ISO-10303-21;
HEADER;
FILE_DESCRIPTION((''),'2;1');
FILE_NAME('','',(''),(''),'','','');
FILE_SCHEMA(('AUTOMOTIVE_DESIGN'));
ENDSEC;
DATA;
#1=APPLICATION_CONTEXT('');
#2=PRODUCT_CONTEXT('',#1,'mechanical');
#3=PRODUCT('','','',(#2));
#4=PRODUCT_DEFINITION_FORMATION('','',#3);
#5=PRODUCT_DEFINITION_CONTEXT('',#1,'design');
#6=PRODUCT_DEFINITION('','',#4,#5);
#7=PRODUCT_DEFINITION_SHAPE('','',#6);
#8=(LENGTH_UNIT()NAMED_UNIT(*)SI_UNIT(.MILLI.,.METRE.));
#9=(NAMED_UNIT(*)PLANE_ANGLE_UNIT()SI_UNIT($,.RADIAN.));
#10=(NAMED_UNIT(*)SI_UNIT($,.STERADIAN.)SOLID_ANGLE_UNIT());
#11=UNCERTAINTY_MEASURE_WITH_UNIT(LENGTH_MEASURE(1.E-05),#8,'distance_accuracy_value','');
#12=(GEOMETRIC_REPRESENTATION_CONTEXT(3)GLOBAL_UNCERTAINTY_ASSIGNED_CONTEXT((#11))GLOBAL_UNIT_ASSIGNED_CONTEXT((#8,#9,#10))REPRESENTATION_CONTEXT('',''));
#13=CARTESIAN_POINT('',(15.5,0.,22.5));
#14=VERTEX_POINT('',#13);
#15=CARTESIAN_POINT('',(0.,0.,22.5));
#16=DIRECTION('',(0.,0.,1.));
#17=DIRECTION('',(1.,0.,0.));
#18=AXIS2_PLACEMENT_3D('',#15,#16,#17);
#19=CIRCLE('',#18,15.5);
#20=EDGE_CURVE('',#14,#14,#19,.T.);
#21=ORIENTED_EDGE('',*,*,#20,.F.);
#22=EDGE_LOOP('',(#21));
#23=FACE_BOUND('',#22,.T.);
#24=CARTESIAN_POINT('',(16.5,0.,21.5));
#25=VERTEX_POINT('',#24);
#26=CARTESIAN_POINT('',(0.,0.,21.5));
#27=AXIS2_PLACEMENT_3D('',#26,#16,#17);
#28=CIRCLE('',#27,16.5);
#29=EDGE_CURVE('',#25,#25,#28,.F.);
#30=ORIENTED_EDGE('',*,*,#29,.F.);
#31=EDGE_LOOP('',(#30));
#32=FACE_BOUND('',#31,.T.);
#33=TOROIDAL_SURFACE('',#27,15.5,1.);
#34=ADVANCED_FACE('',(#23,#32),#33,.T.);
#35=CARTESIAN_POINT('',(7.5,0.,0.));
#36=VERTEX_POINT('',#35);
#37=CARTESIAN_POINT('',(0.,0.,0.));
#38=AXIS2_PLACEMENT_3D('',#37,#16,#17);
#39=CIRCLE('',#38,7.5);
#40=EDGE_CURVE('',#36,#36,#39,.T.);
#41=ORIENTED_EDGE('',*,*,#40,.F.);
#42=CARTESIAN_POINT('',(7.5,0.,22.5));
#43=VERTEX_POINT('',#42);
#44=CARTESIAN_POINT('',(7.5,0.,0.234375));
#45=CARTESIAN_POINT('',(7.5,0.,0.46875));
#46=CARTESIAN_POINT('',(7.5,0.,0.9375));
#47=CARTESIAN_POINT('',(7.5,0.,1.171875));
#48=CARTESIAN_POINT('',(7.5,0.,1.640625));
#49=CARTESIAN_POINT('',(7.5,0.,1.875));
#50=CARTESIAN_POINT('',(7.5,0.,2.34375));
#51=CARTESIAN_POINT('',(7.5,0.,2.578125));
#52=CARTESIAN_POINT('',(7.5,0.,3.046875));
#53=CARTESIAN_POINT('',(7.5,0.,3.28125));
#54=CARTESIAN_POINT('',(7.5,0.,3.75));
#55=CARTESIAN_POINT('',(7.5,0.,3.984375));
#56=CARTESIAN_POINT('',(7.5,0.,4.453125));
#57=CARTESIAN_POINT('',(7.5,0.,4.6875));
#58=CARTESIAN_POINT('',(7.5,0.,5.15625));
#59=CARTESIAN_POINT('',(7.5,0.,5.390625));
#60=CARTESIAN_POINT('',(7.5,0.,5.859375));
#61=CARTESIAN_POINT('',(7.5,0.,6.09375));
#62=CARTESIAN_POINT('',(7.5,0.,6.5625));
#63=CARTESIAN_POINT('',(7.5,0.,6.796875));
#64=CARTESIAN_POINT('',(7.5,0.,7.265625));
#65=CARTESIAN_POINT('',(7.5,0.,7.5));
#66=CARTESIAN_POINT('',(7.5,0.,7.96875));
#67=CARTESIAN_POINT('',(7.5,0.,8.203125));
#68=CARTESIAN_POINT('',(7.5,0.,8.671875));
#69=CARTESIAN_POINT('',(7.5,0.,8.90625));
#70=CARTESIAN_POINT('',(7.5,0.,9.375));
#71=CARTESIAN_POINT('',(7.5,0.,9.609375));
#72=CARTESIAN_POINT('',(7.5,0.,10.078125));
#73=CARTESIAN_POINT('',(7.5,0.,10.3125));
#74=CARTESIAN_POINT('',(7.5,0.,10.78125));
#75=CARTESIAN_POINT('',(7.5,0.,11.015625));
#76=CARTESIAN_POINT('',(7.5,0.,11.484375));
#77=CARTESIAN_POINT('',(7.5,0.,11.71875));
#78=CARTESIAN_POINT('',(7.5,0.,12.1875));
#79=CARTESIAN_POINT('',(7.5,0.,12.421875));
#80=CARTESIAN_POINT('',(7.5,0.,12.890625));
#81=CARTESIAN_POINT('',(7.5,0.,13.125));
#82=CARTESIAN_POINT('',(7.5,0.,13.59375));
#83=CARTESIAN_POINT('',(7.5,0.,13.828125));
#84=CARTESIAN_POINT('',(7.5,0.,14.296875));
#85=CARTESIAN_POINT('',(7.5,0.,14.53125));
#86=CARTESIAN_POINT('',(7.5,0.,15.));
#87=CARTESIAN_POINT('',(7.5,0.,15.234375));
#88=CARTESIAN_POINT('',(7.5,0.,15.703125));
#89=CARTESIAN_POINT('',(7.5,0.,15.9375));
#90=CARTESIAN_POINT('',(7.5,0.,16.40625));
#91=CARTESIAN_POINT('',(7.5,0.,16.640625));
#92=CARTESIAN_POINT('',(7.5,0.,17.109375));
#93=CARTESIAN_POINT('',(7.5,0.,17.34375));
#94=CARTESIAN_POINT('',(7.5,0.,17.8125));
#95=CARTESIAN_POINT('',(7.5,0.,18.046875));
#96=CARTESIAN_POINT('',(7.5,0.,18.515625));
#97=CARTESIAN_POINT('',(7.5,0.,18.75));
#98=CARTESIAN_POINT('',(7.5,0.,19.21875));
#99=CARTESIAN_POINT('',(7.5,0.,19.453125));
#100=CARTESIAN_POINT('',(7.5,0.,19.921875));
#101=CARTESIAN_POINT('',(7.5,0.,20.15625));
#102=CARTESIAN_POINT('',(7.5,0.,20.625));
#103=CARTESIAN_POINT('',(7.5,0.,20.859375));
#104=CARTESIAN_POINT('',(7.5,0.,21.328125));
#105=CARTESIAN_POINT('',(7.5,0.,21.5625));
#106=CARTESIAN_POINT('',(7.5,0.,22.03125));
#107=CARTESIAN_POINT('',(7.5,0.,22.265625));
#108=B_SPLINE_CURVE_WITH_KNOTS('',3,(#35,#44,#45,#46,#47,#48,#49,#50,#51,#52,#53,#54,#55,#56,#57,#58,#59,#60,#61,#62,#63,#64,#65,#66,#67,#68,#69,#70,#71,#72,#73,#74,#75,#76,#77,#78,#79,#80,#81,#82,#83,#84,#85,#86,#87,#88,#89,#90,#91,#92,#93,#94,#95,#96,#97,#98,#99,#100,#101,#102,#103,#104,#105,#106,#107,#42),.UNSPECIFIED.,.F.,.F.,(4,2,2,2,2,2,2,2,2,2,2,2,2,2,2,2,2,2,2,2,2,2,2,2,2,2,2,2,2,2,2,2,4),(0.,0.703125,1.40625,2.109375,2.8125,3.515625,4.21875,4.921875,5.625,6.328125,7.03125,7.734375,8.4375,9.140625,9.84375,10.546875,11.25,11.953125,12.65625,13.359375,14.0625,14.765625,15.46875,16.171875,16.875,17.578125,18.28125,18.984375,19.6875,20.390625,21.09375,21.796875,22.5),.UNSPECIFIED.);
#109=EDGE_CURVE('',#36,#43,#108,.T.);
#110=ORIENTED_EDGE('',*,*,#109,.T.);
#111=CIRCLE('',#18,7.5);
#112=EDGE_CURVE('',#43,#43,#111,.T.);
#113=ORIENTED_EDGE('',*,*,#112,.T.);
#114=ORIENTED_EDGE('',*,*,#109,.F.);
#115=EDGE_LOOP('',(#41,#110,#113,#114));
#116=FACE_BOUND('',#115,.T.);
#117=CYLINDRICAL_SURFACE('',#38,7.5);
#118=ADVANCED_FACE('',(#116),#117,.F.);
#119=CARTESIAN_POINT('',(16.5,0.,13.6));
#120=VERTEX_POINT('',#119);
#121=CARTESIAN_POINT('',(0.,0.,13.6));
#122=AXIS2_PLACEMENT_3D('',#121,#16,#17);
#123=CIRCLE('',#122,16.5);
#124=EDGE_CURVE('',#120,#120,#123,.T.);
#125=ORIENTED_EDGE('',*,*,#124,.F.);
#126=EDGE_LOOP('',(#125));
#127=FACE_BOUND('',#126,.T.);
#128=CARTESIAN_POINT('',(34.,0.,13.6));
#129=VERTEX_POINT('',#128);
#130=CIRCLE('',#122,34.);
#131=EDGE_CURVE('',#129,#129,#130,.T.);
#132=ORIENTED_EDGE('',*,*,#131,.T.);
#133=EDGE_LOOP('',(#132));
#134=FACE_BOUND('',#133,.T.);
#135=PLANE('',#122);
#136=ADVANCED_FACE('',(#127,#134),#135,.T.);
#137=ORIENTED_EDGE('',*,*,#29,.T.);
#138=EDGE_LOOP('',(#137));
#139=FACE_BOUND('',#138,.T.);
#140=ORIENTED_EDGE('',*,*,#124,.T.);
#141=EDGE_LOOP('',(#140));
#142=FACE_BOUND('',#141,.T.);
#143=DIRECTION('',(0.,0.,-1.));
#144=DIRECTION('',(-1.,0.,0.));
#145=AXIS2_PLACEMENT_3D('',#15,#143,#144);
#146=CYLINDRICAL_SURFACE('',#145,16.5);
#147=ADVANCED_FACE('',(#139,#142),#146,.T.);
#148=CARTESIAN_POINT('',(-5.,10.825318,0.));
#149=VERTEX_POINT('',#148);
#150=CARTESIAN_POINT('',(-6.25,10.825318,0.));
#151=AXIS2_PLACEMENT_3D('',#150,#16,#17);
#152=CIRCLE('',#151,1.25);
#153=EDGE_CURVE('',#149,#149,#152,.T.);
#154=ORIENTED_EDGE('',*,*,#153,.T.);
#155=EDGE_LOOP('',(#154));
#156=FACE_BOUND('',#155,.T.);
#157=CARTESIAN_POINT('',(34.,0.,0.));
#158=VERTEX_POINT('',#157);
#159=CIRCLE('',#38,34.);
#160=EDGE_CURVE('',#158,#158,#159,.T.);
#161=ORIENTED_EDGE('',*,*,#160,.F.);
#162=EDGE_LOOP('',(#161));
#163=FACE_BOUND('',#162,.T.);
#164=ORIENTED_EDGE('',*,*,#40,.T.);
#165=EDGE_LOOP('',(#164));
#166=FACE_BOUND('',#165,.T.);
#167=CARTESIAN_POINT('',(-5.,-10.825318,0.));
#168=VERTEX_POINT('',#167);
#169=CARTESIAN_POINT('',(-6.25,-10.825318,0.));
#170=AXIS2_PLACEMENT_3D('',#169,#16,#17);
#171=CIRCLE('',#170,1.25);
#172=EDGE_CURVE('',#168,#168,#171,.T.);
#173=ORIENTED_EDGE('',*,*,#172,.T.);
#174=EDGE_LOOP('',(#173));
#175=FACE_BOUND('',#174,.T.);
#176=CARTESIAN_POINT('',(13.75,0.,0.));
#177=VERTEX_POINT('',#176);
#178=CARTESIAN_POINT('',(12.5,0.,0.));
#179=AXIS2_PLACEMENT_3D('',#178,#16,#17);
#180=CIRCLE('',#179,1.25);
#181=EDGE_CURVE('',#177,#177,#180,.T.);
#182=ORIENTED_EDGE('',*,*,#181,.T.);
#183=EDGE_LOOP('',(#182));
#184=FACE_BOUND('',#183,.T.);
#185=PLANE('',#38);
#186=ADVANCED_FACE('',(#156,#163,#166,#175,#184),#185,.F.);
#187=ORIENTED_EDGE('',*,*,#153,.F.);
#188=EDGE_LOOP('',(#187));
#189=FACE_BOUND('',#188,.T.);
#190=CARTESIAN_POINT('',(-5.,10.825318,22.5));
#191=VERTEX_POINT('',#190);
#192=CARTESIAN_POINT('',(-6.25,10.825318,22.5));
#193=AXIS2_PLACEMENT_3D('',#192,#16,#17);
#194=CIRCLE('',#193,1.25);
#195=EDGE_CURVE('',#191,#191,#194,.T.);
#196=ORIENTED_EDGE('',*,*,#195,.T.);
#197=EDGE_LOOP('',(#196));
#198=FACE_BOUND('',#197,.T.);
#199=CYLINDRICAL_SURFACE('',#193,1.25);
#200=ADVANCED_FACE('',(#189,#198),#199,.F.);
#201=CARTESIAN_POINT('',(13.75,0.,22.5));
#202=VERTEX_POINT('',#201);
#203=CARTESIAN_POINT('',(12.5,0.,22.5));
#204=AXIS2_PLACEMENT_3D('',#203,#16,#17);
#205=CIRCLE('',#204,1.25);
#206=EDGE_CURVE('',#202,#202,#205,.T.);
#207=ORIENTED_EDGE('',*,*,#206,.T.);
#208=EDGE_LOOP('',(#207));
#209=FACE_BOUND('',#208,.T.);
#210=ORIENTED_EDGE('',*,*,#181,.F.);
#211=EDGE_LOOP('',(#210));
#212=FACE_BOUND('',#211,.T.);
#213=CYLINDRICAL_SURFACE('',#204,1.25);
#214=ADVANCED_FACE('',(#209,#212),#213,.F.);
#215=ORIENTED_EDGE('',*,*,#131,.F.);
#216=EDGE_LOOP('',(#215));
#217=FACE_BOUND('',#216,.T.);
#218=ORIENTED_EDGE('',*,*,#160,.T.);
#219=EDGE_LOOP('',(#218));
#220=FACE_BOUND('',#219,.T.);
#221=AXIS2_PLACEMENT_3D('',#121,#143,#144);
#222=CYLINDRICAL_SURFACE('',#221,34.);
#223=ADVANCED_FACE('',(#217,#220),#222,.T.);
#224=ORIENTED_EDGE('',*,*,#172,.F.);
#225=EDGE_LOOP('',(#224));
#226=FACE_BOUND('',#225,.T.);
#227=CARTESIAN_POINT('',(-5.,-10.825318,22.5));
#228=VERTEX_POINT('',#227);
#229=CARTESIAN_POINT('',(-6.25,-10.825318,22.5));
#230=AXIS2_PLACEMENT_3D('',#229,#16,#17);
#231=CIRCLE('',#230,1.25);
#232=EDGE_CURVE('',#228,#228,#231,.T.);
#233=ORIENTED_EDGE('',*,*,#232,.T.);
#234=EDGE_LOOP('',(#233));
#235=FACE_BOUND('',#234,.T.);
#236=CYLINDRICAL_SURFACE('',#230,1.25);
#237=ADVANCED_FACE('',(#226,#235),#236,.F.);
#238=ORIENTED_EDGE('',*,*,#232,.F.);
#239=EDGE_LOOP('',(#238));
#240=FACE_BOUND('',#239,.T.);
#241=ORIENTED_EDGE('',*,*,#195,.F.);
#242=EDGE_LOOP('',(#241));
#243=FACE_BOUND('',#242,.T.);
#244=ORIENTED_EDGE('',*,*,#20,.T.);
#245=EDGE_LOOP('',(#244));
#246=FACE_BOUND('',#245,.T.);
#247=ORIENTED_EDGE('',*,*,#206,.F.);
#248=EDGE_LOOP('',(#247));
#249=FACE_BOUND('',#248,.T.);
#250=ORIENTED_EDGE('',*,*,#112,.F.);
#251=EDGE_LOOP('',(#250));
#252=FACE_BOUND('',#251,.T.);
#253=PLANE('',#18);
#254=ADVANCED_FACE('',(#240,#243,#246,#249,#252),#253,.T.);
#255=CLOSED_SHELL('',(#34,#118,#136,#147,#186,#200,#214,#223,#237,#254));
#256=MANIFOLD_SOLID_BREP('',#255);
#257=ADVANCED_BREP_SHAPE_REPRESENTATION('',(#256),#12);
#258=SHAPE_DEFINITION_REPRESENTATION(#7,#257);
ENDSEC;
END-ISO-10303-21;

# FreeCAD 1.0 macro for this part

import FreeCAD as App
import Part
import Sketcher

V = App.Vector


def edges_at(feature, points):
    """Names of the edges that pass closest to the given points."""
    edges = feature.Shape.Edges
    near = lambda p: min(range(len(edges)), key=lambda i: edges[i].distToShape(Part.Vertex(*p))[0])
    return sorted({f"Edge{near(p) + 1}" for p in points})

doc = App.newDocument("Part")
body = doc.addObject("PartDesign::Body", "Body")

# Sketch on XY plane
sketch1 = body.newObject("Sketcher::SketchObject", "Sketch")
sketch1.AttachmentSupport = (doc.getObject("XY_Plane"), [""])
sketch1.MapMode = "FlatFace"
sketch1.addGeometry(Part.Circle(V(0, 0, 0), V(0, 0, 1), 34), False)
sketch1.addConstraint([
    Sketcher.Constraint("Coincident", 0, 3, -1, 1),
    Sketcher.Constraint("Diameter", 0, 68.0),
])
pad1 = body.newObject("PartDesign::Pad", "Pad")
pad1.Profile = sketch1
pad1.Length = 13.6

# Sketch on XY plane
sketch2 = body.newObject("Sketcher::SketchObject", "Sketch001")
sketch2.AttachmentSupport = (doc.getObject("XY_Plane"), [""])
sketch2.MapMode = "FlatFace"
sketch2.AttachmentOffset = App.Placement(V(0, 0, 13.6), App.Rotation())
sketch2.addGeometry(Part.Circle(V(0, 0, 0), V(0, 0, 1), 16), False)
sketch2.addConstraint([
    Sketcher.Constraint("Coincident", 0, 3, -1, 1),
    Sketcher.Constraint("Diameter", 0, 33.0),
])
pad2 = body.newObject("PartDesign::Pad", "Pad001")
pad2.Profile = sketch2
pad2.Length = 8.9
doc.recompute()

fillet = body.newObject("PartDesign::Fillet", "Fillet")
fillet.Base = (pad2, edges_at(pad2, [(-16.5, 0, 22.5)]))
fillet.Radius = 1

# Sketch on XY plane
sketch3 = body.newObject("Sketcher::SketchObject", "Sketch002")
sketch3.AttachmentSupport = (doc.getObject("XY_Plane"), [""])
sketch3.MapMode = "FlatFace"
sketch3.addGeometry(Part.Circle(V(0, 0, 0), V(0, 0, 1), 4), False)
sketch3.addConstraint([
    Sketcher.Constraint("Coincident", 0, 3, -1, 1),
    Sketcher.Constraint("Diameter", 0, 8.0),
])
pocket1 = body.newObject("PartDesign::Pocket", "Pocket")
pocket1.Profile = sketch3
pocket1.Type = "ThroughAll"
pocket1.Reversed = True

# Sketch on XY plane
sketch4 = body.newObject("Sketcher::SketchObject", "Sketch003")
sketch4.AttachmentSupport = (doc.getObject("XY_Plane"), [""])
sketch4.MapMode = "FlatFace"
sketch4.AttachmentOffset = App.Placement(V(0, 0, 22.5), App.Rotation())
sketch4.addGeometry(Part.Circle(V(0, 0, 0), V(0, 0, 1), 8), False)
sketch4.addConstraint([
    Sketcher.Constraint("Coincident", 0, 3, -1, 1),
    Sketcher.Constraint("Diameter", 0, 15.0),
])
pocket2 = body.newObject("PartDesign::Pocket", "Pocket001")
pocket2.Profile = sketch4
pocket2.Type = "ThroughAll"

# Sketch on XY plane
sketch5 = body.newObject("Sketcher::SketchObject", "Sketch004")
sketch5.AttachmentSupport = (doc.getObject("XY_Plane"), [""])
sketch5.MapMode = "FlatFace"
sketch5.AttachmentOffset = App.Placement(V(0, 0, 22.5), App.Rotation())
sketch5.addGeometry([
    Part.Circle(V(-6.2, 10.8, 0), V(0, 0, 1), 1.2),
    Part.Circle(V(-6.2, -10.8, 0), V(0, 0, 1), 1.2),
    Part.Circle(V(12.5, 0, 0), V(0, 0, 1), 1.2),
], False)
sketch5.addConstraint([
    Sketcher.Constraint("Equal", 0, 1),
    Sketcher.Constraint("Equal", 1, 2),
    Sketcher.Constraint("Symmetric", 0, 3, 1, 3, -1),
    Sketcher.Constraint("PointOnObject", 2, 3, -1),
    Sketcher.Constraint("Diameter", 0, 2.5),
    Sketcher.Constraint("DistanceX", -1, 1, 2, 3, 12.5),
    Sketcher.Constraint("DistanceX", 0, 3, -1, 1, 6.25),
    Sketcher.Constraint("DistanceY", -1, 1, 0, 3, 10.825318),
])
doc.recompute()
hole = body.newObject("PartDesign::Hole", "Hole")
hole.Profile = sketch5
hole.ThreadType = "None"
hole.Diameter = 2.5
hole.DepthType = "ThroughAll"

doc.recompute()
